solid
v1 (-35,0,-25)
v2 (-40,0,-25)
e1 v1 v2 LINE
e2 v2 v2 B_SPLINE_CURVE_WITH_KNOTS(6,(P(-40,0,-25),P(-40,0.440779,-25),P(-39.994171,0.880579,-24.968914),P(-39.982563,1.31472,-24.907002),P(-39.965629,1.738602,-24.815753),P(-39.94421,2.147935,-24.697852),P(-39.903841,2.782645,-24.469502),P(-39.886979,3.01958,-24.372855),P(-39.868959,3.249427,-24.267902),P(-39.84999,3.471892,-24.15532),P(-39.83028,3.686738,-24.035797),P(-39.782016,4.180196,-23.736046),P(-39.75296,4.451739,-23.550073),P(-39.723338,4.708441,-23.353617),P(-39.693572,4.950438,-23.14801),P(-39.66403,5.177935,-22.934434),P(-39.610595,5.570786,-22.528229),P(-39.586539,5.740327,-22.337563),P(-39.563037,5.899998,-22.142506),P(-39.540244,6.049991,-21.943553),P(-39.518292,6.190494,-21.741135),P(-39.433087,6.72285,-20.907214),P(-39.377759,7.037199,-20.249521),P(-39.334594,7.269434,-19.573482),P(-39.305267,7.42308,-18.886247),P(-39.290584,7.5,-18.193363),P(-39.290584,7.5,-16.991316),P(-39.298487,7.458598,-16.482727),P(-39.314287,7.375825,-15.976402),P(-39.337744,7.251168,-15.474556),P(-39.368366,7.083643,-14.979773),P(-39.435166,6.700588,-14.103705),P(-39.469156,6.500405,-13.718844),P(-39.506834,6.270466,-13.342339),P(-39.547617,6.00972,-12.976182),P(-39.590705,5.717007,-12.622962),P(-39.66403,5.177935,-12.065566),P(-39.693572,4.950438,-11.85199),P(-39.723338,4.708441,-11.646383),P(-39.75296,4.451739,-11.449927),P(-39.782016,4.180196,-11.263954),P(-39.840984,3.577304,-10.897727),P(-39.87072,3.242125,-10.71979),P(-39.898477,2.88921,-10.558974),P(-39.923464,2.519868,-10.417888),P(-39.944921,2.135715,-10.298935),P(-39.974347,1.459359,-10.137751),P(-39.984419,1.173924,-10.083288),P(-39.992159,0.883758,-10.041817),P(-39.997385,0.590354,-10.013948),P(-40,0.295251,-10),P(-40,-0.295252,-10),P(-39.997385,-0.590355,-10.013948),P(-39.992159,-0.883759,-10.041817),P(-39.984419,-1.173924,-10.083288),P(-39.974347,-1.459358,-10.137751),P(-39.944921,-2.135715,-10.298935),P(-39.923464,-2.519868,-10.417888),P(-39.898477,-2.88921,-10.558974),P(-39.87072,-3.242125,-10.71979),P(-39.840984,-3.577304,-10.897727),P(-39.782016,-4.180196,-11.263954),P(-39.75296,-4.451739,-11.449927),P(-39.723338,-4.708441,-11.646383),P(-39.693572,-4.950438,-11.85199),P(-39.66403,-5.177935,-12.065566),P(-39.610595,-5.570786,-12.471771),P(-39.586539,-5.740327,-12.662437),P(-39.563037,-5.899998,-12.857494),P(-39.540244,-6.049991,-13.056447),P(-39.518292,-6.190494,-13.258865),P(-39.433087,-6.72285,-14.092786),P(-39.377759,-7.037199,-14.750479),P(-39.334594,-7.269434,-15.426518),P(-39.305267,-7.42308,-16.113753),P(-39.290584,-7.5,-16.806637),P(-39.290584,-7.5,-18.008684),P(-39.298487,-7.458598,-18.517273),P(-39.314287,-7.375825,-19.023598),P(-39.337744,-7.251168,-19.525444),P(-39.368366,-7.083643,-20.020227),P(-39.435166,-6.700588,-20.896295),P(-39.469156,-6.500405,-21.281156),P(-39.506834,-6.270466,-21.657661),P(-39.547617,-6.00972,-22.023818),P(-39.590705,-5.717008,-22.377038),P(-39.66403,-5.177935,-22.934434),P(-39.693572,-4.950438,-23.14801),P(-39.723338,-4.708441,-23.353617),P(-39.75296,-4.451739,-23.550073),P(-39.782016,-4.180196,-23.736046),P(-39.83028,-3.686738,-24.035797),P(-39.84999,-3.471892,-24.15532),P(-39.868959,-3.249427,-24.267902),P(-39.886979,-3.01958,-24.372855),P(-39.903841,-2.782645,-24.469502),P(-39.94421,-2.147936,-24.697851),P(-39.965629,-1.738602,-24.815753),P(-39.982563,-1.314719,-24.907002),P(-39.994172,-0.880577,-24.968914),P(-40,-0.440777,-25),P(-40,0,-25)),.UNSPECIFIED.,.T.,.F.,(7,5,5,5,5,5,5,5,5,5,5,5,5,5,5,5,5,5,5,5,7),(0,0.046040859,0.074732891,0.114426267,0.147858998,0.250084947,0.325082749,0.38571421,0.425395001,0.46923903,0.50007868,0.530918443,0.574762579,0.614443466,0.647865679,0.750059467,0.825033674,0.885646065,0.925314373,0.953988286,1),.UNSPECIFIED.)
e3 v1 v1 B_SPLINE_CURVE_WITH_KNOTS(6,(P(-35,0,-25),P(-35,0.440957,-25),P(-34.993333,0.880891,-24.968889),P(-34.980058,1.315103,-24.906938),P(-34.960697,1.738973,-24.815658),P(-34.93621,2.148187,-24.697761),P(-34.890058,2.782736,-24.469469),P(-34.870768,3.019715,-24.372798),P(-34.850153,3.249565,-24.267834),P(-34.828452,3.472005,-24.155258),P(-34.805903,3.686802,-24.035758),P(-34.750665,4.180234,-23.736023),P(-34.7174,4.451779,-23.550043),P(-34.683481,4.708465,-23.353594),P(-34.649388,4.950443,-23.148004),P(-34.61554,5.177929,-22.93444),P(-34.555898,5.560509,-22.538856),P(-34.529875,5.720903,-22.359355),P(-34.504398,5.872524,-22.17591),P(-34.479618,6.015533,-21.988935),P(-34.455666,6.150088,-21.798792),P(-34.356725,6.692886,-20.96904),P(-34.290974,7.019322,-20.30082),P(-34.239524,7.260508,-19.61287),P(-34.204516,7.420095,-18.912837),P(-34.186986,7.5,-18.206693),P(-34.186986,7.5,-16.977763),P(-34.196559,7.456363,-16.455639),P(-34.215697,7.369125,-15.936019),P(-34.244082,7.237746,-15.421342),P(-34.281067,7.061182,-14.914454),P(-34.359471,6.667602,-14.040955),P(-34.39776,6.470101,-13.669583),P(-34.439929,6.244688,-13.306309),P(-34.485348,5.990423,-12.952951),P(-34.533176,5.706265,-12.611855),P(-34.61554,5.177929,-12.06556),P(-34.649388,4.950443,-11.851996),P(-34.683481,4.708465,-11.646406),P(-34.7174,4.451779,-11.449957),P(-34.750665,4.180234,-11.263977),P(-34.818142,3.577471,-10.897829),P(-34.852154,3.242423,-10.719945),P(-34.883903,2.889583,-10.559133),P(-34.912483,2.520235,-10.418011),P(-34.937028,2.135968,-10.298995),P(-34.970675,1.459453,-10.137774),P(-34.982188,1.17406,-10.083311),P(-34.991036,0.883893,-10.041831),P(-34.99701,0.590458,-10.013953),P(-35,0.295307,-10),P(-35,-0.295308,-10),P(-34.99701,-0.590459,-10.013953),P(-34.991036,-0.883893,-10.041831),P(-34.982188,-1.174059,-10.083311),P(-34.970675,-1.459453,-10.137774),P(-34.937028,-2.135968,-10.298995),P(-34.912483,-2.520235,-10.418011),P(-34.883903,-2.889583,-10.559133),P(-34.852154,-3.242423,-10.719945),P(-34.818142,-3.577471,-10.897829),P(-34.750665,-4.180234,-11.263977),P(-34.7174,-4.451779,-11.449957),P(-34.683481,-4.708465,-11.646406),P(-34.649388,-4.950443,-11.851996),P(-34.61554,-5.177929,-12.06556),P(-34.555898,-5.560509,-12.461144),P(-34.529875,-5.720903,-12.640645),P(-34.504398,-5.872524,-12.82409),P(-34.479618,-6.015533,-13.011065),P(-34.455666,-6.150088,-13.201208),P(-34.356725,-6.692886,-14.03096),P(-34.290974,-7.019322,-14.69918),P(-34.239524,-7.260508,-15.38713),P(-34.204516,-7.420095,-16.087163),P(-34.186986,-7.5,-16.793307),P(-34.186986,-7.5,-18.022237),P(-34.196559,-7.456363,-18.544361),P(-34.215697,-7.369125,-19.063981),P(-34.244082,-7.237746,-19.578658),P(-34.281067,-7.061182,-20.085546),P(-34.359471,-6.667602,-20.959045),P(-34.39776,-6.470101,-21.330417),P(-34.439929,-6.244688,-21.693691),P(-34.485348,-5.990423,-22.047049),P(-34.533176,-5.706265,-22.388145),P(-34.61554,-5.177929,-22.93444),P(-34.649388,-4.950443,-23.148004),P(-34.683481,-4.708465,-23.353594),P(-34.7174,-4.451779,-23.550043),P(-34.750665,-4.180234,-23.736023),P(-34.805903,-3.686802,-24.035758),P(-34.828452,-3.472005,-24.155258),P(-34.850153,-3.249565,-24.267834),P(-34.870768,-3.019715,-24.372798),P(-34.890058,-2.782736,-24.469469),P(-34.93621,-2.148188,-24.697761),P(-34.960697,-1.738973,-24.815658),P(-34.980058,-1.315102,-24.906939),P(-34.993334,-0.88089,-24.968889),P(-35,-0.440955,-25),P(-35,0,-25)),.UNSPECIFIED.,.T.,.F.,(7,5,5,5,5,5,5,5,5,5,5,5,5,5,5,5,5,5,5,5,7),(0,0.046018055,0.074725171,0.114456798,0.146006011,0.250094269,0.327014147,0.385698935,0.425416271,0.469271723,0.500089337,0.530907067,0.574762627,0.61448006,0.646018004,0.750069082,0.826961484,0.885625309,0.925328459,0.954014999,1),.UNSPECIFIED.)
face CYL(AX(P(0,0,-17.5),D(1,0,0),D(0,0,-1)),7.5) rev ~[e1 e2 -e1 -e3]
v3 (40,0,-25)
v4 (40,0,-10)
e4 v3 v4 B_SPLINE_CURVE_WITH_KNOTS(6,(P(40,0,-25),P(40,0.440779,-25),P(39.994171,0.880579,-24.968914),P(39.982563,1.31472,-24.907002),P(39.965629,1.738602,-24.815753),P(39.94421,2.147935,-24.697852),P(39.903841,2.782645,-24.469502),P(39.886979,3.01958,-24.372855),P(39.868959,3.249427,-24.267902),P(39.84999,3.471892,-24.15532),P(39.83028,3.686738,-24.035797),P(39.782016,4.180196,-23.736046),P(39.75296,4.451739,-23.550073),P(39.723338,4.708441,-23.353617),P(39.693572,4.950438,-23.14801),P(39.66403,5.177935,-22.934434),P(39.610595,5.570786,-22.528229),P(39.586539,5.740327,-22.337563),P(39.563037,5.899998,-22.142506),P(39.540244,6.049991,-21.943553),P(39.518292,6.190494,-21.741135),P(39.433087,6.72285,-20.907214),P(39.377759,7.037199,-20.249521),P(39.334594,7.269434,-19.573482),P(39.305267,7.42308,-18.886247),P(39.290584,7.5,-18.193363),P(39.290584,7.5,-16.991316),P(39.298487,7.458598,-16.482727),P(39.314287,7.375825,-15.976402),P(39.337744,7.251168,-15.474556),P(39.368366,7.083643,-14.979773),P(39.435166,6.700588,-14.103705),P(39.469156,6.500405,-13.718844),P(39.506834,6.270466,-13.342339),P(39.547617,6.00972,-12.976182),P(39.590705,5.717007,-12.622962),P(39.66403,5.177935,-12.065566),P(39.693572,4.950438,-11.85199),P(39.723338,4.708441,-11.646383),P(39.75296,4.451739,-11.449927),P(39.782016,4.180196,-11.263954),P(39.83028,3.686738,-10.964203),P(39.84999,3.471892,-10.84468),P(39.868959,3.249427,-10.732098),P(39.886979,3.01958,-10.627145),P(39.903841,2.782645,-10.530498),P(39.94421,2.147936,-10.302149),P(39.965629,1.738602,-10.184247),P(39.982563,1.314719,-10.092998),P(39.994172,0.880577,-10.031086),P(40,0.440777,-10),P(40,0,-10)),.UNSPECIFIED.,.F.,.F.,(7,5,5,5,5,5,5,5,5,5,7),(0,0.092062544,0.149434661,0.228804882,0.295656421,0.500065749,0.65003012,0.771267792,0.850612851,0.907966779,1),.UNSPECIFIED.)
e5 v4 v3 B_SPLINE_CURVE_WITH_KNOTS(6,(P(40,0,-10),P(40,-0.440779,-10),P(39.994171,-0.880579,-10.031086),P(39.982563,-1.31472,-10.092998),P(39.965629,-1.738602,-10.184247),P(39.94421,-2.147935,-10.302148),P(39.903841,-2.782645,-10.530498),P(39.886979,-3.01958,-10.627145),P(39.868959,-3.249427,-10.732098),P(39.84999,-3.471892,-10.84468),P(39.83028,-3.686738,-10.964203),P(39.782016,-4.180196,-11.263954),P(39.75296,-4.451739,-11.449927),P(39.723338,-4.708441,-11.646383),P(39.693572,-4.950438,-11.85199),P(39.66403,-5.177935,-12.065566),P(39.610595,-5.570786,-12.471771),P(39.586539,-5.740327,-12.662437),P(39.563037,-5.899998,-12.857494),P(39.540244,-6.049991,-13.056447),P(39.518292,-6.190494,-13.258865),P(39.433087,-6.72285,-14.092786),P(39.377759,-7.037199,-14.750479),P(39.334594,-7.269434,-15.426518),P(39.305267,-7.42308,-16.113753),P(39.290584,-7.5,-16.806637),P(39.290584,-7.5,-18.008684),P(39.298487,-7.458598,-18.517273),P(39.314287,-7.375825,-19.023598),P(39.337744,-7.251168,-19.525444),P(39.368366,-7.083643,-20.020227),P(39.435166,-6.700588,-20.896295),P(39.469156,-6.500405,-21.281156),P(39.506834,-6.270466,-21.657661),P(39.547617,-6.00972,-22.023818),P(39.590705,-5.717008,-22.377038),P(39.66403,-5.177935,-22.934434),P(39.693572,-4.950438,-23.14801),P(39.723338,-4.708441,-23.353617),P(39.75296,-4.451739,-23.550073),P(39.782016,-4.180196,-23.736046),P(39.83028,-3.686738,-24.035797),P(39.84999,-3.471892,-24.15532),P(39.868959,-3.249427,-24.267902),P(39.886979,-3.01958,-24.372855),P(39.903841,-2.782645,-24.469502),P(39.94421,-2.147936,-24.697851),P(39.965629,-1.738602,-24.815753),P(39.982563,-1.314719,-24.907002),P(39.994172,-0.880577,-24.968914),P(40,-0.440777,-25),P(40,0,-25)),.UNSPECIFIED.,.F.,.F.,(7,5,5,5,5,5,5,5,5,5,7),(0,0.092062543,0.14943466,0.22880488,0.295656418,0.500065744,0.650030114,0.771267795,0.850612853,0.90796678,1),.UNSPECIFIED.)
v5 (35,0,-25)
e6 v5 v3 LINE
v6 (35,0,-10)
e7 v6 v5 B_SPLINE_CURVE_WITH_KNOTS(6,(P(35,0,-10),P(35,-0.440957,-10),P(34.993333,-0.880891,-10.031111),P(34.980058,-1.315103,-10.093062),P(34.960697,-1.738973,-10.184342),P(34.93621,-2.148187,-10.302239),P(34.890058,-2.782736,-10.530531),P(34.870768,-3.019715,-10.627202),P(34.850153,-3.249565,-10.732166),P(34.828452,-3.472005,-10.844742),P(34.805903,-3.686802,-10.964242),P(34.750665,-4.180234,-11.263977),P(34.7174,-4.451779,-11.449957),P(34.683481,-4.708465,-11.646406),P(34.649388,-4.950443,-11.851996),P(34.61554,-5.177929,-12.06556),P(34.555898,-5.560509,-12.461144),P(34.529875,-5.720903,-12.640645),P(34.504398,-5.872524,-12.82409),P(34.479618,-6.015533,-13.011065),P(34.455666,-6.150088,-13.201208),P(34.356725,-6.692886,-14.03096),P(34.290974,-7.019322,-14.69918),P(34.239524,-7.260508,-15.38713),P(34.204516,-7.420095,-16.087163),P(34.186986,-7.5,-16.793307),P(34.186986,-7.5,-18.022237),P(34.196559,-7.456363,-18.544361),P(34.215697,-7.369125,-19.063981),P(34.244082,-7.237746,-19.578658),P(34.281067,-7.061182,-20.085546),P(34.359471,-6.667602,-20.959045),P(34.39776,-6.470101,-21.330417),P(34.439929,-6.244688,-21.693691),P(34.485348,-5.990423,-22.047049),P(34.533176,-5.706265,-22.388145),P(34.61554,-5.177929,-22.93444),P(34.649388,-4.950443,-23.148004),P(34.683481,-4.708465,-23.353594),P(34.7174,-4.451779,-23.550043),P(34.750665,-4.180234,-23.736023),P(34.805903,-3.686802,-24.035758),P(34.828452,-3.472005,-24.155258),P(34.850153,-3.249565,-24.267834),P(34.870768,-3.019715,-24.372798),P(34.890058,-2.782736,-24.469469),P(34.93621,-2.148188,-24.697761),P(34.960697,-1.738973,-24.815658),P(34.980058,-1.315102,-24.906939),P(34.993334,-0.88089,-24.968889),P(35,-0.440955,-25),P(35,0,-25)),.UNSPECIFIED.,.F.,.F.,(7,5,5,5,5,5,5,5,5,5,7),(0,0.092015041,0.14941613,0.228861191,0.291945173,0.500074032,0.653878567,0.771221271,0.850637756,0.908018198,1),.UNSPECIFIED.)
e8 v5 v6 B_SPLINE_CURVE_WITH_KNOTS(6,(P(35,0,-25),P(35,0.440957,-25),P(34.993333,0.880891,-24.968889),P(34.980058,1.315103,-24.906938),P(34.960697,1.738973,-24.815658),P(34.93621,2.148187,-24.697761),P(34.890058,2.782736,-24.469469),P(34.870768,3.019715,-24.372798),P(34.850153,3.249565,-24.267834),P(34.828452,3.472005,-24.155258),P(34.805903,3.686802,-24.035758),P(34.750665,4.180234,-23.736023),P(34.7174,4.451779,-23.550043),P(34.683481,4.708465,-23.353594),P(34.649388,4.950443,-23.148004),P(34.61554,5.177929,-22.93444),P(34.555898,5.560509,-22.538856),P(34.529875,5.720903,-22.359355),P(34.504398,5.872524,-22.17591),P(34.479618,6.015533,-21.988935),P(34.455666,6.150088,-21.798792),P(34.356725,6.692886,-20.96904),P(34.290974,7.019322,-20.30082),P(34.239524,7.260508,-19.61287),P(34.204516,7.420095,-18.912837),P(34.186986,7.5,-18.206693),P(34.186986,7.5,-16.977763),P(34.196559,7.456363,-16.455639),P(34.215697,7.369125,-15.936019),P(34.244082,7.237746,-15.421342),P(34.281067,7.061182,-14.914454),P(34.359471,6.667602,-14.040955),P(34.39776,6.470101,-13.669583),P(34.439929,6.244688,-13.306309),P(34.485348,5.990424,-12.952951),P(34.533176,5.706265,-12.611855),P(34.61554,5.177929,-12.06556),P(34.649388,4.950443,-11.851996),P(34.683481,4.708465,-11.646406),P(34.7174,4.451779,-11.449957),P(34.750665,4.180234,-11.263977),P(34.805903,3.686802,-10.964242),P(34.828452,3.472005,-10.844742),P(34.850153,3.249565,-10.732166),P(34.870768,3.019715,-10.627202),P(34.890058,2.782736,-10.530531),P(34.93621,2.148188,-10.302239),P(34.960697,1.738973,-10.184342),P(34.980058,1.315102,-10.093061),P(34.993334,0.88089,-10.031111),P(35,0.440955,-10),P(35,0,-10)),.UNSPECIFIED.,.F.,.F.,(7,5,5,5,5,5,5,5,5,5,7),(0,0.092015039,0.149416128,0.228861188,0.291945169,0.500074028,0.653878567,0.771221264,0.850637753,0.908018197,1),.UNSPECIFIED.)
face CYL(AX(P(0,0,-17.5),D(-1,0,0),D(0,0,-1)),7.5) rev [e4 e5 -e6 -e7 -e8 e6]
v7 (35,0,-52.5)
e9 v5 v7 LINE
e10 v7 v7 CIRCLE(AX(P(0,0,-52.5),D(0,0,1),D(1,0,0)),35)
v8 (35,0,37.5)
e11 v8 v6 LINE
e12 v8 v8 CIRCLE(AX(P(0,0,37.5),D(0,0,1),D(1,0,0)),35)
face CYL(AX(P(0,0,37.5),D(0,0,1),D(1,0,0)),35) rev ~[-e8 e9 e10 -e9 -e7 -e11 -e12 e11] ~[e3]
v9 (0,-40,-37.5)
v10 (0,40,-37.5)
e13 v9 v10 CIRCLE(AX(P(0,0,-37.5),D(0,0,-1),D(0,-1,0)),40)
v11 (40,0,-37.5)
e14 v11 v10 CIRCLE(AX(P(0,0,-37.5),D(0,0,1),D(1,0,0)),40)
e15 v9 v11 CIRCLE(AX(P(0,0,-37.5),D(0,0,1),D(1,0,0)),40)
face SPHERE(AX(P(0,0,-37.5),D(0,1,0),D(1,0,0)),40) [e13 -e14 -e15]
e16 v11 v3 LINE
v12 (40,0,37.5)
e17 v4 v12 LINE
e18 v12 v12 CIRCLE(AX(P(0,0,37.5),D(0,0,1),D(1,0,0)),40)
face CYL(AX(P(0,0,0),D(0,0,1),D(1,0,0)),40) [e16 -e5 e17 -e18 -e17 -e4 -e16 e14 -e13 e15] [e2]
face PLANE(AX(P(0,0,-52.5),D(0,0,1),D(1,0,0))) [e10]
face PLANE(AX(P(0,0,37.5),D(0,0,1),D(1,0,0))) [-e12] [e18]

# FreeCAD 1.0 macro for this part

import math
import FreeCAD as App
import Part
import Sketcher

doc = App.newDocument("Part")
body = doc.addObject("PartDesign::Body", "Body")

sketch1 = body.newObject("Sketcher::SketchObject", "Sketch")
sketch1.AttachmentSupport = (doc.getObject("XY_Plane"), [""])
sketch1.MapMode = "FlatFace"
sketch1.addGeometry(Part.Circle(App.Vector(0, 0, 0), App.Vector(0, 0, 1), 40), False)
sketch1.addConstraint(Sketcher.Constraint("Coincident", 0, 3, -1, 1))
sketch1.addConstraint(Sketcher.Constraint("Diameter", 0, 80.0))
pad1 = body.newObject("PartDesign::Pad", "Pad")
pad1.Profile = sketch1
pad1.Length = 75
pad1.Midplane = True

sketch2 = body.newObject("Sketcher::SketchObject", "Sketch001")
sketch2.AttachmentSupport = (doc.getObject("YZ_Plane"), [""])
sketch2.MapMode = "FlatFace"
sketch2.addGeometry(Part.Circle(App.Vector(0, -17.5, 0), App.Vector(0, 0, 1), 7.5), False)
sketch2.addConstraint(Sketcher.Constraint("PointOnObject", 0, 3, -2))
sketch2.addConstraint(Sketcher.Constraint("Diameter", 0, 15.0))
sketch2.addConstraint(Sketcher.Constraint("DistanceY", 0, 3, -1, 1, 17.5))
pocket1 = body.newObject("PartDesign::Pocket", "Pocket")
pocket1.Profile = sketch2
pocket1.Type = "ThroughAll"
pocket1.Midplane = True

sketch3 = body.newObject("Sketcher::SketchObject", "Sketch002")
sketch3.AttachmentSupport = (doc.getObject("XY_Plane"), [""])
sketch3.MapMode = "FlatFace"
sketch3.AttachmentOffset = App.Placement(App.Vector(0, 0, -37.5), App.Rotation())
sketch3.addGeometry(Part.LineSegment(App.Vector(0, -40, 0), App.Vector(0, 40, 0)), False)
sketch3.addGeometry(Part.ArcOfCircle(Part.Circle(App.Vector(0, 0, 0), App.Vector(0, 0, 1), 40), math.radians(-90), math.radians(90)), False)
sketch3.addConstraint(Sketcher.Constraint("Coincident", 0, 1, 1, 1))
sketch3.addConstraint(Sketcher.Constraint("Coincident", 1, 2, 0, 2))
sketch3.addConstraint(Sketcher.Constraint("Vertical", 0))
sketch3.addConstraint(Sketcher.Constraint("Coincident", 1, 3, -1, 1))
sketch3.addConstraint(Sketcher.Constraint("PointOnObject", 0, 1, -2))
sketch3.addConstraint(Sketcher.Constraint("Radius", 1, 40.0))
revolution = body.newObject("PartDesign::Revolution", "Revolution")
revolution.Profile = sketch3
revolution.ReferenceAxis = (sketch3, ["V_Axis"])
revolution.Angle = 180

sketch4 = body.newObject("Sketcher::SketchObject", "Sketch003")
sketch4.AttachmentSupport = (doc.getObject("XY_Plane"), [""])
sketch4.MapMode = "FlatFace"
sketch4.AttachmentOffset = App.Placement(App.Vector(0, 0, 37.5), App.Rotation())
sketch4.addGeometry(Part.Circle(App.Vector(0, 0, 0), App.Vector(0, 0, 1), 35), False)
sketch4.addConstraint(Sketcher.Constraint("Coincident", 0, 3, -1, 1))
sketch4.addConstraint(Sketcher.Constraint("Diameter", 0, 70.0))
pocket2 = body.newObject("PartDesign::Pocket", "Pocket001")
pocket2.Profile = sketch4
pocket2.Length = 90

doc.recompute()
